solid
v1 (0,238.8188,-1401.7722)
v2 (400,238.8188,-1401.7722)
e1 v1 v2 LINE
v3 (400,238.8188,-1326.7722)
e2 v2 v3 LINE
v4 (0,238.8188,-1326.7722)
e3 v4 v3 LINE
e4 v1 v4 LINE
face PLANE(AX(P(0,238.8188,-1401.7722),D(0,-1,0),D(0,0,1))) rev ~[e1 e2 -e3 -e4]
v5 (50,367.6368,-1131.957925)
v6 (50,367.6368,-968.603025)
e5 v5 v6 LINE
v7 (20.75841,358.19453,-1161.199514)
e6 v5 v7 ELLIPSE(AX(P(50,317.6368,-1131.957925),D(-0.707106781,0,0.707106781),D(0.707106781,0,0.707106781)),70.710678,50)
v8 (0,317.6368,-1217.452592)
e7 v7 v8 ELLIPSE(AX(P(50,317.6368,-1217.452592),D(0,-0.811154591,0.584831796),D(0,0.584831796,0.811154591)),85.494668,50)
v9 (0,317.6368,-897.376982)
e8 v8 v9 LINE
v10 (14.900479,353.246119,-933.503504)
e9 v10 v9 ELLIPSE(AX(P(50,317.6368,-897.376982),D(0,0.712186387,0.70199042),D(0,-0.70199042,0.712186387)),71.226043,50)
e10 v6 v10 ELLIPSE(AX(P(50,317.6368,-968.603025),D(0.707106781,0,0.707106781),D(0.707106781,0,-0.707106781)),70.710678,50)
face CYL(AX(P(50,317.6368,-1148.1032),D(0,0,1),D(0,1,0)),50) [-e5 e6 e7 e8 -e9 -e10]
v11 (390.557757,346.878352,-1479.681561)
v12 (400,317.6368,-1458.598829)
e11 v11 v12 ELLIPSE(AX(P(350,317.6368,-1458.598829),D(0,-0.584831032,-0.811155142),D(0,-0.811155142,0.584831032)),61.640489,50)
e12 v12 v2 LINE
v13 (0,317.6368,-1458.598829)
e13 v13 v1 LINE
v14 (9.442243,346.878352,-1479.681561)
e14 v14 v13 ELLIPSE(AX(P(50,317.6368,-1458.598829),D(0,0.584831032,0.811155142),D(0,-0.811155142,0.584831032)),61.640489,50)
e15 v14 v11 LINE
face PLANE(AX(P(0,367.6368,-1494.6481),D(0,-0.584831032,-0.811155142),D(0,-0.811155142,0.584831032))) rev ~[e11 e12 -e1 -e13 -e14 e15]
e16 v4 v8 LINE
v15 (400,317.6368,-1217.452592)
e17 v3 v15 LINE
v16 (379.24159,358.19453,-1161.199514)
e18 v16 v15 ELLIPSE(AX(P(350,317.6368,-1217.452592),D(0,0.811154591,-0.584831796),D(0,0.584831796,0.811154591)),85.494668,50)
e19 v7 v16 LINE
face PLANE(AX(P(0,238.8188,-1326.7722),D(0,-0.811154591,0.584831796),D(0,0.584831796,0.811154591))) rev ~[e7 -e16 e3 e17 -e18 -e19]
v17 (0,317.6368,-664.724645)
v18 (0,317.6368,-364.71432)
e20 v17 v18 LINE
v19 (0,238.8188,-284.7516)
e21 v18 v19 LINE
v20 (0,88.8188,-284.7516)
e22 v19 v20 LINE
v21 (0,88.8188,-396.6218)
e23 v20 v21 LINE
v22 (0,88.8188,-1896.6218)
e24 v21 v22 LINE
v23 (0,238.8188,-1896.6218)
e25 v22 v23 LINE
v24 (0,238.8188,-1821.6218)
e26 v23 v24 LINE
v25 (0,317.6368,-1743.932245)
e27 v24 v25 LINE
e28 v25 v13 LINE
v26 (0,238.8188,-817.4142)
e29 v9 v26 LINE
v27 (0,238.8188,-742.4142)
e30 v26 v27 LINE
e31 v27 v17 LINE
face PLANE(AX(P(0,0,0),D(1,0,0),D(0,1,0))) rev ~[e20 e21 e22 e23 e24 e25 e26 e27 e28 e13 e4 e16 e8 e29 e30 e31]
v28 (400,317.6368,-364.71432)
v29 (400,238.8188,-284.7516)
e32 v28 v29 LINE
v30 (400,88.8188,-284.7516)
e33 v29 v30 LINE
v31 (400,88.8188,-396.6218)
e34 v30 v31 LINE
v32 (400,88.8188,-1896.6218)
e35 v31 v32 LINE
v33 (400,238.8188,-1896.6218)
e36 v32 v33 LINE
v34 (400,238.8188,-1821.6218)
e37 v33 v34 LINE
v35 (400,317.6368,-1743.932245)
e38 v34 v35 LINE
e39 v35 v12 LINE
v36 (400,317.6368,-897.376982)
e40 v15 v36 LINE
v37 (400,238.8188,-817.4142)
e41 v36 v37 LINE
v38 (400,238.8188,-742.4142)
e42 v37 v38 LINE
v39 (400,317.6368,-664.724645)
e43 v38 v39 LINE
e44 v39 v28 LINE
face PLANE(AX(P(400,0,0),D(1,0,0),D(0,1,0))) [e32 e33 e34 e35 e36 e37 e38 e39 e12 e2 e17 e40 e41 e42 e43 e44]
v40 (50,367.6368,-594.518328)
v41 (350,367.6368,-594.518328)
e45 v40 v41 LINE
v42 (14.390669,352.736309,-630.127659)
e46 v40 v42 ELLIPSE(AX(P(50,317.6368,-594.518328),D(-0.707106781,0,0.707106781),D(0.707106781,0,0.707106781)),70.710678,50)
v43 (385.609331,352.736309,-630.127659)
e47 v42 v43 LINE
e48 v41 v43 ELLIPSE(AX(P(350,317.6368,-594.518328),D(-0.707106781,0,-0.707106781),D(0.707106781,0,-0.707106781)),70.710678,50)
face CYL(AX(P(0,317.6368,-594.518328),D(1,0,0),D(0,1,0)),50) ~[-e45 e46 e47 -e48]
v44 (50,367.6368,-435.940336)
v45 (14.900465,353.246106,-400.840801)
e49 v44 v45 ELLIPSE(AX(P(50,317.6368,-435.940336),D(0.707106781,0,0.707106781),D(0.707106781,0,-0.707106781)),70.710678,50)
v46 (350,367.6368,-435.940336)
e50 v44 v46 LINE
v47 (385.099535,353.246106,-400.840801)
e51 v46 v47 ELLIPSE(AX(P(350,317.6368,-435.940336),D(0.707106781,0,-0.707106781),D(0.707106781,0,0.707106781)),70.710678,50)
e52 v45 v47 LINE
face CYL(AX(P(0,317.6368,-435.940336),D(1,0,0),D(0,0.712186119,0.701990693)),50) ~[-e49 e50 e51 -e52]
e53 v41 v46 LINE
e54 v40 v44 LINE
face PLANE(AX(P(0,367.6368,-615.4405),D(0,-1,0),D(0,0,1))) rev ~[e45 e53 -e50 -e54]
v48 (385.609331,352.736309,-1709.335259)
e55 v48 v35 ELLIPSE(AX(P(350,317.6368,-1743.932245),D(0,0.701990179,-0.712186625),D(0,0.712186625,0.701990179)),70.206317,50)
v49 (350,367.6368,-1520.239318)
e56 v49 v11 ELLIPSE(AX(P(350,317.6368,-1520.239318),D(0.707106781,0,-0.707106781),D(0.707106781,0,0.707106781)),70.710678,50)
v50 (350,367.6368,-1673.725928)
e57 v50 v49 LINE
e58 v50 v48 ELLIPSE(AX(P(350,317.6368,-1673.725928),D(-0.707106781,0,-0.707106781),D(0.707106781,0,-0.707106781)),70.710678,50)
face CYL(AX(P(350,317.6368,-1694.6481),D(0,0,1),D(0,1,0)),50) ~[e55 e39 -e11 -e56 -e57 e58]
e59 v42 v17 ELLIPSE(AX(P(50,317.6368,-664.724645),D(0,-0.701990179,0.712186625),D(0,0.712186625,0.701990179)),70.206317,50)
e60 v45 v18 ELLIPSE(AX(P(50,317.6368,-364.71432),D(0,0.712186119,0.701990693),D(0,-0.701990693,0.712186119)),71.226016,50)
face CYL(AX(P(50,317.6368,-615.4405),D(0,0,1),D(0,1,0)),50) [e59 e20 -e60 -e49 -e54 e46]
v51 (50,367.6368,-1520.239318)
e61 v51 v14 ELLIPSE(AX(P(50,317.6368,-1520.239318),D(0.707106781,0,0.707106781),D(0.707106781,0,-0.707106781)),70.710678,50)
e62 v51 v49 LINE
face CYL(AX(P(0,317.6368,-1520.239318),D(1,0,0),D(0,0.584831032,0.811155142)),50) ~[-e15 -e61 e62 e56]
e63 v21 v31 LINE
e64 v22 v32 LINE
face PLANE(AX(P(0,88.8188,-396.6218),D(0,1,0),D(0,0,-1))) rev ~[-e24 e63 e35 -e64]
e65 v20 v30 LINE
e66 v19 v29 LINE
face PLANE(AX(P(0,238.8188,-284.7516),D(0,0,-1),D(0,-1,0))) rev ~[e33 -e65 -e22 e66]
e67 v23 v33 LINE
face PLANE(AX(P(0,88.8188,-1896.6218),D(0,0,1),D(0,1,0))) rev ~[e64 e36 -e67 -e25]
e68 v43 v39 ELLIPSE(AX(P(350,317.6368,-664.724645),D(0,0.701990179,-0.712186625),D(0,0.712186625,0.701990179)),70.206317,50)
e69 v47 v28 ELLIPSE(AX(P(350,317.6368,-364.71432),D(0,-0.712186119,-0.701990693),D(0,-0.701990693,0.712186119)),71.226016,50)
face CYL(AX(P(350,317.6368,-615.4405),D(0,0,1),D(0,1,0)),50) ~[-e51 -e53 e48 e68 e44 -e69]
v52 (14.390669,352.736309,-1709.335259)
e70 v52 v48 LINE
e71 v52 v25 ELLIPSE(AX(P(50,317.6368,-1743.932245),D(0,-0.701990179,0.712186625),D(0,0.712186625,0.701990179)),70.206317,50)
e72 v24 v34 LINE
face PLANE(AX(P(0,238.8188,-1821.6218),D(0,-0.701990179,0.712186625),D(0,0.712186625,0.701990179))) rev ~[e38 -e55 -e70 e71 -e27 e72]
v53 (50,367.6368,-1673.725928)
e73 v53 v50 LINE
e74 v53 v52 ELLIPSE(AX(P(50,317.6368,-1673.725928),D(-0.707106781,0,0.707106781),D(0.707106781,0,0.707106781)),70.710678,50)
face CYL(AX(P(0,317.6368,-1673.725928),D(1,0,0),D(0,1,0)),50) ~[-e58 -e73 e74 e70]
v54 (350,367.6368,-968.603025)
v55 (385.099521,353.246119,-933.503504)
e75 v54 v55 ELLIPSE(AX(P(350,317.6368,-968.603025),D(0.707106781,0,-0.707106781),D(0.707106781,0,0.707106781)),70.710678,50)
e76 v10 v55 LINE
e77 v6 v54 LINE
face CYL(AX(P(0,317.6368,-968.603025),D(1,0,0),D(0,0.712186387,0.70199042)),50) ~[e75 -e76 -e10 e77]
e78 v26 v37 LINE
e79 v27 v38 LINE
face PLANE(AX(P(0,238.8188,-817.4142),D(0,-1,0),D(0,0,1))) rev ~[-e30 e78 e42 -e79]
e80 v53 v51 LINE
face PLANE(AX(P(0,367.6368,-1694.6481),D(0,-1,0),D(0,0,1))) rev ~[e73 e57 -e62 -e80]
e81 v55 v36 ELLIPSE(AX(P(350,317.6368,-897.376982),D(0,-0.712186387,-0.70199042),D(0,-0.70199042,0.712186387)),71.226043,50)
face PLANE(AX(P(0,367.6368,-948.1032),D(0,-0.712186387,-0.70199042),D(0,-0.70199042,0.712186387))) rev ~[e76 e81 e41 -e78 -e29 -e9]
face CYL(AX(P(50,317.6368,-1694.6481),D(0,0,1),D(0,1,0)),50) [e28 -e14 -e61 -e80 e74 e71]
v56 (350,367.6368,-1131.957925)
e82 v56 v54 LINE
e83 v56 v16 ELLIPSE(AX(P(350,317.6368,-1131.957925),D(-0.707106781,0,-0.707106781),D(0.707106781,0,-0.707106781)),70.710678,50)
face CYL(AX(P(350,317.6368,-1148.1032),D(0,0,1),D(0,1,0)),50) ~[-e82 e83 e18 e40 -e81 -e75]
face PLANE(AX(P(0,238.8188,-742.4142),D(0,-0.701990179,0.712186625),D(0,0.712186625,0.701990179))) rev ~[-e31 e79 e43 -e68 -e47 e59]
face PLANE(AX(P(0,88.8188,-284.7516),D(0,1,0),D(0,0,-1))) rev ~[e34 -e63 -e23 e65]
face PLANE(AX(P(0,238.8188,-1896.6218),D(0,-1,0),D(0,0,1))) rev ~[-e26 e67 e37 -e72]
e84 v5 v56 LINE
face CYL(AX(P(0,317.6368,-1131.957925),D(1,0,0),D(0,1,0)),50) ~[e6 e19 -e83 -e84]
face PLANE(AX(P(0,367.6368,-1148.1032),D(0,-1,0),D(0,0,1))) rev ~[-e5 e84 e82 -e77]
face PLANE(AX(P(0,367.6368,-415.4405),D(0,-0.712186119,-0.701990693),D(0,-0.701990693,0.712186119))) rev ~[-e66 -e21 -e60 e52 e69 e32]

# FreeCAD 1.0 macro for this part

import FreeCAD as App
import Part
import Sketcher
from FreeCAD import Vector
Q = App.Units.Quantity


def edges_at(feature, points):
    """Names of the edges that pass closest to the given points."""
    edges = feature.Shape.Edges
    near = lambda p: min(range(len(edges)), key=lambda i: edges[i].distToShape(Part.Vertex(*p))[0])
    return sorted({f"Edge{near(p) + 1}" for p in points})


def add_polygon(sketch, points):
    """Adds a closed chain of lines whose ends are joined by coincident constraints."""
    first, n = sketch.GeometryCount, len(points)
    for a, b in zip(points, points[1:] + points[:1]):
        sketch.addGeometry(Part.LineSegment(App.Vector(*a, 0), App.Vector(*b, 0)), False)
    for i in range(n):
        sketch.addConstraint(Sketcher.Constraint("Coincident", first + i, 2, first + (i + 1) % n, 1))

doc = App.newDocument("Part")
body = doc.addObject("PartDesign::Body", "Body")

sketch1 = body.newObject("Sketcher::SketchObject", "Sketch")
sketch1.AttachmentSupport = (doc.getObject("YZ_Plane"), [""])
sketch1.MapMode = "FlatFace"
add_polygon(sketch1, [(89, -285), (89, -1897), (239, -1897), (239, -1822), (368, -1695), (368, -1495), (239, -1402), (239, -1327), (368, -1148), (368, -948), (239, -817), (239, -742), (368, -615), (368, -415), (239, -285)])
sketch1.addConstraint([
    Sketcher.Constraint("Vertical", 0),
    Sketcher.Constraint("Horizontal", 1),
    Sketcher.Constraint("Vertical", 2),
    Sketcher.Constraint("Vertical", 4),
    Sketcher.Constraint("Vertical", 6),
    Sketcher.Constraint("Vertical", 8),
    Sketcher.Constraint("Vertical", 10),
    Sketcher.Constraint("Vertical", 12),
    Sketcher.Constraint("Horizontal", 14),
    Sketcher.Constraint("Perpendicular", 5, 7),
    Sketcher.Constraint("Perpendicular", 3, 9),
    Sketcher.Constraint("Perpendicular", 9, 11),
    Sketcher.Constraint("Perpendicular", 11, 13),
    Sketcher.Constraint("Vertical", 2, 2, 5, 2),
    Sketcher.Constraint("Vertical", 4, 2, 7, 2),
    Sketcher.Constraint("Vertical", 6, 2, 9, 2),
    Sketcher.Constraint("Vertical", 8, 2, 11, 2),
    Sketcher.Constraint("Vertical", 10, 2, 13, 2),
    Sketcher.Constraint("Equal", 2, 6),
    Sketcher.Constraint("Equal", 4, 8),
    Sketcher.Constraint("Equal", 6, 10),
    Sketcher.Constraint("Equal", 8, 12),
    Sketcher.Constraint("DistanceX", 1, 1, 1, 2, 150.0),
    Sketcher.Constraint("DistanceY", 2, 1, 2, 2, 75.0),
    Sketcher.Constraint("DistanceY", 4, 1, 4, 2, 200.0),
    Sketcher.Constraint("Angle", 5, Q("144.209 deg")),
    Sketcher.Constraint("Distance", 5, 158.808),
    Sketcher.Constraint("Distance", 9, 183.504),
    Sketcher.Constraint("DistanceY", 3, 2, -1, 1, 1694.648),
    Sketcher.Constraint("DistanceX", -1, 1, 0, 2, 88.8188),
])
pad1 = body.newObject("PartDesign::Pad", "Pad")
pad1.Profile = sketch1
pad1.Length = 400
doc.recompute()

fillet = body.newObject("PartDesign::Fillet", "Fillet")
fillet.Base = (pad1, edges_at(pad1, [
    (200, 367.637, -415.44),
    (400, 367.637, -515.441),
    (200, 367.637, -615.441),
    (200, 367.637, -948.103),
    (0, 367.637, -515.441),
    (0, 367.637, -1048.103),
    (200, 367.637, -1148.103),
    (400, 367.637, -1048.103),
    (200, 367.637, -1494.648),
    (400, 367.637, -1594.648),
    (200, 367.637, -1694.648),
    (0, 367.637, -1594.648),
]))
fillet.Radius = 50

doc.recompute()
